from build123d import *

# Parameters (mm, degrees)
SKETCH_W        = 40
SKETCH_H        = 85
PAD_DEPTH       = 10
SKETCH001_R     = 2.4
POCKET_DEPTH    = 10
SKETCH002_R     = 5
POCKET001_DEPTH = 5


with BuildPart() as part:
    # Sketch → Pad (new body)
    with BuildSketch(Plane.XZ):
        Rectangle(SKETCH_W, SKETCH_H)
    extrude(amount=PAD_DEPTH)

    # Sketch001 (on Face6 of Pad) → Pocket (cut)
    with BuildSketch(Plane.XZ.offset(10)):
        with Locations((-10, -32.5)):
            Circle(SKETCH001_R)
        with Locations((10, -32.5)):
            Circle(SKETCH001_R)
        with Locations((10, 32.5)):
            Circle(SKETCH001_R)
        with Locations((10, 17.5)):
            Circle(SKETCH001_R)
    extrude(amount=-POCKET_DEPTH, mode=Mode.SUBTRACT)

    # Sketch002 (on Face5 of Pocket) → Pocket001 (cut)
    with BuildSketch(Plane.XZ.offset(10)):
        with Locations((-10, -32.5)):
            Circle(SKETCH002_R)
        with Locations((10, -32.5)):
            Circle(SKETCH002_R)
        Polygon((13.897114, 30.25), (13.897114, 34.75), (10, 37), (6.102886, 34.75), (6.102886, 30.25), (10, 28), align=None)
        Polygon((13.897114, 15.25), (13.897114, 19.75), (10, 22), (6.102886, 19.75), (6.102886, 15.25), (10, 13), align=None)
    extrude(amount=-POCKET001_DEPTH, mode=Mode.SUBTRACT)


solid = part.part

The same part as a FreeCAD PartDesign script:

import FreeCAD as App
import Part
import Sketcher

V = App.Vector
Q = App.Units.Quantity


def add_polygon(sketch, points):
    """Adds a closed chain of lines whose ends are joined by coincident constraints."""
    first, n = sketch.GeometryCount, len(points)
    for a, b in zip(points, points[1:] + points[:1]):
        sketch.addGeometry(Part.LineSegment(App.Vector(*a, 0), App.Vector(*b, 0)), False)
    for i in range(n):
        sketch.addConstraint(Sketcher.Constraint("Coincident", first + i, 2, first + (i + 1) % n, 1))

doc = App.newDocument("Part")
body = doc.addObject("PartDesign::Body", "Body")

sketch1 = body.newObject("Sketcher::SketchObject", "Sketch")
sketch1.AttachmentSupport = (doc.getObject("XZ_Plane"), [""])
sketch1.MapMode = "FlatFace"
add_polygon(sketch1, [(-20, 42.5), (-20, -42.5), (20, -42.5), (20, 42.5)])
sketch1.addConstraint([
    Sketcher.Constraint("Vertical", 0),
    Sketcher.Constraint("Horizontal", 1),
    Sketcher.Constraint("Vertical", 2),
    Sketcher.Constraint("Horizontal", 3),
    Sketcher.Constraint("Symmetric", 0, 2, 2, 2, -1, 1),
    Sketcher.Constraint("DistanceX", 1, 1, 1, 2, Q("40 mm")),
    Sketcher.Constraint("DistanceY", 0, 2, 0, 1, Q("85 mm")),
])
pad1 = body.newObject("PartDesign::Pad", "Pad")
pad1.Profile = sketch1
pad1.Length = 10

sketch2 = body.newObject("Sketcher::SketchObject", "Sketch001")
sketch2.AttachmentSupport = (doc.getObject("XZ_Plane"), [""])
sketch2.MapMode = "FlatFace"
sketch2.AttachmentOffset = App.Placement(V(0, 0, 10), App.Rotation())
sketch2.addGeometry([
    Part.Circle(V(-10, -32.5, 0), V(0, 0, 1), 2.4),
    Part.Circle(V(10, -32.5, 0), V(0, 0, 1), 2.4),
    Part.Circle(V(10, 32.5, 0), V(0, 0, 1), 2.4),
    Part.Circle(V(10, 17.5, 0), V(0, 0, 1), 2.4),
], False)
sketch2.addConstraint([
    Sketcher.Constraint("Equal", 0, 1),
    Sketcher.Constraint("Equal", 1, 2),
    Sketcher.Constraint("Equal", 2, 3),
    Sketcher.Constraint("Symmetric", 0, 3, 2, 3, -1, 1),
    Sketcher.Constraint("Symmetric", 0, 3, 1, 3, -2),
    Sketcher.Constraint("Vertical", 2, 3, 3, 3),
    Sketcher.Constraint("Diameter", 0, Q("4.8 mm")),
    Sketcher.Constraint("DistanceX", 0, 3, -1, 1, Q("10 mm")),
    Sketcher.Constraint("DistanceY", 1, 3, 2, 3, Q("65 mm")),
    Sketcher.Constraint("DistanceY", 3, 3, 2, 3, Q("15 mm")),
])
pocket1 = body.newObject("PartDesign::Pocket", "Pocket")
pocket1.Profile = sketch2
pocket1.Length = 10

sketch3 = body.newObject("Sketcher::SketchObject", "Sketch002")
sketch3.AttachmentSupport = (doc.getObject("XZ_Plane"), [""])
sketch3.MapMode = "FlatFace"
sketch3.AttachmentOffset = App.Placement(V(0, 0, 10), App.Rotation())
sketch3.addGeometry(Part.Circle(V(-10, -32.5, 0), V(0, 0, 1), 5), False)
sketch3.addGeometry(Part.Circle(V(10, -32.5, 0), V(0, 0, 1), 5), False)
add_polygon(sketch3, [(13.897114, 30.25), (13.897114, 34.75), (10, 37), (6.102886, 34.75), (6.102886, 30.25), (10, 28)])
add_polygon(sketch3, [(13.897114, 15.25), (13.897114, 19.75), (10, 22), (6.102886, 19.75), (6.102886, 15.25), (10, 13)])
sketch3.addConstraint([
    Sketcher.Constraint("Vertical", 2),
    Sketcher.Constraint("Vertical", 5),
    Sketcher.Constraint("Vertical", 8),
    Sketcher.Constraint("Vertical", 11),
    Sketcher.Constraint("Equal", 0, 1),
    Sketcher.Constraint("Symmetric", 0, 3, 1, 3, -2),
    Sketcher.Constraint("Parallel", 3, 6),
    Sketcher.Constraint("Parallel", 4, 7),
    Sketcher.Constraint("Parallel", 6, 9),
    Sketcher.Constraint("Parallel", 7, 10),
    Sketcher.Constraint("Parallel", 9, 12),
    Sketcher.Constraint("Parallel", 10, 13),
    Sketcher.Constraint("Horizontal", 2, 2, 4, 2),
    Sketcher.Constraint("Horizontal", 5, 2, 7, 2),
    Sketcher.Constraint("Horizontal", 8, 2, 10, 2),
    Sketcher.Constraint("Horizontal", 11, 2, 13, 2),
    Sketcher.Constraint("Vertical", 1, 3, 3, 2),
    Sketcher.Constraint("Vertical", 3, 2, 6, 2),
    Sketcher.Constraint("Vertical", 7, 2, 8, 2),
    Sketcher.Constraint("Vertical", 6, 2, 9, 2),
    Sketcher.Constraint("Equal", 5, 8),
    Sketcher.Constraint("Diameter", 0, Q("10 mm")),
    Sketcher.Constraint("Angle", 3, Q("149.999998 deg")),
    Sketcher.Constraint("DistanceY", 2, 1, 2, 2, Q("4.5 mm")),
    Sketcher.Constraint("DistanceX", 0, 3, -1, 1, Q("10 mm")),
    Sketcher.Constraint("DistanceY", -1, 1, 3, 2, Q("37 mm")),
    Sketcher.Constraint("DistanceY", -1, 1, 6, 2, Q("28 mm")),
    Sketcher.Constraint("DistanceY", -1, 1, 9, 2, Q("22 mm")),
    Sketcher.Constraint("DistanceY", 0, 3, -1, 1, Q("32.5 mm")),
])
pocket2 = body.newObject("PartDesign::Pocket", "Pocket001")
pocket2.Profile = sketch3
pocket2.Length = 5

doc.recompute()
